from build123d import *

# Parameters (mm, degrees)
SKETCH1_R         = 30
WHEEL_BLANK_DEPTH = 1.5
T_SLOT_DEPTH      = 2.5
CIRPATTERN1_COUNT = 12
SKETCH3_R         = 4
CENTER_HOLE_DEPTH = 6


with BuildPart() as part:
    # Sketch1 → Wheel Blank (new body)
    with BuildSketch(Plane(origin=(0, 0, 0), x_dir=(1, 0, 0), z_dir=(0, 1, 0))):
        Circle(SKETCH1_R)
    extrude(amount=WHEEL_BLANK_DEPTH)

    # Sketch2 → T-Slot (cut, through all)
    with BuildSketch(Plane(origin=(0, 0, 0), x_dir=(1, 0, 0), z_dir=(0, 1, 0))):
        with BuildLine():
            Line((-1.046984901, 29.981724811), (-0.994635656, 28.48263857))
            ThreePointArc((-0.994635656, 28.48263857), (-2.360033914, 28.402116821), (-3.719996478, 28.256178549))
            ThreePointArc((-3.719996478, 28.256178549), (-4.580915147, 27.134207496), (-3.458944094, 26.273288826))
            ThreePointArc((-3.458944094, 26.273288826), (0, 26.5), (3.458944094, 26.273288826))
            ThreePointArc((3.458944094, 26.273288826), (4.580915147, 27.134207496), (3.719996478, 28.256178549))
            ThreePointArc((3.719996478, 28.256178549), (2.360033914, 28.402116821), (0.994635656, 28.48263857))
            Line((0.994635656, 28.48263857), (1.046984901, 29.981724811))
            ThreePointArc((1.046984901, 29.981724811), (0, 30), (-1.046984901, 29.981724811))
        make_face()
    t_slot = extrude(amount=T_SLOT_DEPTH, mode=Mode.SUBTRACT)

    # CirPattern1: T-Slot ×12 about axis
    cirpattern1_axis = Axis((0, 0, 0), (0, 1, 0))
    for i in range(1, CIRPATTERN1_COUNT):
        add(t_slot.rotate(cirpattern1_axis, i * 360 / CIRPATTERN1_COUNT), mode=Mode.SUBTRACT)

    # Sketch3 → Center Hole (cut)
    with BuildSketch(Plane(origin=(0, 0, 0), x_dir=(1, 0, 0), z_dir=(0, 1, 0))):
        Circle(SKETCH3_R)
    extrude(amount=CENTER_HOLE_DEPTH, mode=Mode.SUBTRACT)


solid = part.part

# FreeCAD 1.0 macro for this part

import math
import FreeCAD as App
import Part
import Sketcher
from FreeCAD import Vector
Q = App.Units.Quantity

doc = App.newDocument("Part")
body = doc.addObject("PartDesign::Body", "Body")

# Sketch on XZ plane
sketch1 = body.newObject("Sketcher::SketchObject", "Sketch")
sketch1.AttachmentSupport = (doc.getObject("XZ_Plane"), [""])
sketch1.MapMode = "FlatFace"
sketch1.addGeometry(Part.Circle(Vector(0, 0, 0), Vector(0, 0, 1), 30), False)
sketch1.addConstraint(Sketcher.Constraint("Coincident", 0, 3, -1, 1))
sketch1.addConstraint(Sketcher.Constraint("Diameter", 0, 60.0))
pad1 = body.newObject("PartDesign::Pad", "Pad")
pad1.Profile = sketch1
pad1.Length = 1.5
pad1.Reversed = True

# Sketch on XZ plane
sketch2 = body.newObject("Sketcher::SketchObject", "Sketch001")
sketch2.AttachmentSupport = (doc.getObject("XZ_Plane"), [""])
sketch2.MapMode = "FlatFace"
sketch2.addGeometry(Part.LineSegment(Vector(-1.046985, -29.981725, 0), Vector(-0.994636, -28.482639, 0)), False)
sketch2.addGeometry(Part.ArcOfCircle(Part.Circle(Vector(0, 0, 0), Vector(0, 0, 1), 28.5), math.radians(-97.5), math.radians(-92)), False)
sketch2.addGeometry(Part.ArcOfCircle(Part.Circle(Vector(-3.58947, -27.264734, 0), Vector(0, 0, 1), 1), math.radians(82.5), math.radians(262.5)), False)
sketch2.addGeometry(Part.ArcOfCircle(Part.Circle(Vector(0, 0, 0), Vector(0, 0, 1), 26.5), math.radians(-97.5), math.radians(-82.5)), False)
sketch2.addGeometry(Part.ArcOfCircle(Part.Circle(Vector(3.58947, -27.264734, 0), Vector(0, 0, 1), 1), math.radians(-82.5), math.radians(97.5)), False)
sketch2.addGeometry(Part.ArcOfCircle(Part.Circle(Vector(0, 0, 0), Vector(0, 0, 1), 28.5), math.radians(-88), math.radians(-82.5)), False)
sketch2.addGeometry(Part.LineSegment(Vector(0.994636, -28.482639, 0), Vector(1.046985, -29.981725, 0)), False)
sketch2.addGeometry(Part.ArcOfCircle(Part.Circle(Vector(0, 0.000001, 0), Vector(0, 0, 1), 30.000001), math.radians(-92), math.radians(-88)), False)
sketch2.addConstraint(Sketcher.Constraint("Coincident", 0, 2, 1, 2))
sketch2.addConstraint(Sketcher.Constraint("Tangent", 1, 1, 2, 2))
sketch2.addConstraint(Sketcher.Constraint("Tangent", 2, 1, 3, 1))
sketch2.addConstraint(Sketcher.Constraint("Tangent", 3, 2, 4, 2))
sketch2.addConstraint(Sketcher.Constraint("Tangent", 4, 1, 5, 2))
sketch2.addConstraint(Sketcher.Constraint("Coincident", 5, 1, 6, 1))
sketch2.addConstraint(Sketcher.Constraint("Coincident", 6, 2, 7, 2))
sketch2.addConstraint(Sketcher.Constraint("Coincident", 7, 1, 0, 1))
sketch2.addConstraint(Sketcher.Constraint("Coincident", 1, 3, -1, 1))
sketch2.addConstraint(Sketcher.Constraint("Coincident", 3, 3, -1, 1))
sketch2.addConstraint(Sketcher.Constraint("Coincident", 5, 3, -1, 1))
sketch2.addConstraint(Sketcher.Constraint("Coincident", 7, 3, -1, 1))
sketch2.addConstraint(Sketcher.Constraint("Equal", 2, 4))
sketch2.addConstraint(Sketcher.Constraint("Horizontal", 2, 3, 4, 3))
sketch2.addConstraint(Sketcher.Constraint("Horizontal", 0, 2, 5, 1))
sketch2.addConstraint(Sketcher.Constraint("Horizontal", 6, 2, 7, 1))
sketch2.addConstraint(Sketcher.Constraint("Radius", 2, 1.0))
sketch2.addConstraint(Sketcher.Constraint("Radius", 7, 30.000001))
sketch2.addConstraint(Sketcher.Constraint("Radius", 1, 28.5))
sketch2.addConstraint(Sketcher.Constraint("Angle", 0, Q("88 deg")))
sketch2.addConstraint(Sketcher.Constraint("DistanceX", 2, 3, -1, 1, 3.58947))
sketch2.addConstraint(Sketcher.Constraint("DistanceY", 0, 2, -1, 1, 28.482639))
pocket1 = body.newObject("PartDesign::Pocket", "Pocket")
pocket1.Profile = sketch2
pocket1.Type = "ThroughAll"
doc.recompute()

polarpattern = body.newObject("PartDesign::PolarPattern", "PolarPattern")
polarpattern.Originals = [pocket1]
polarpattern.Axis = (doc.getObject("Y_Axis"), [""])
polarpattern.Angle = 360
polarpattern.Occurrences = 12
body.Tip = polarpattern

# Sketch on XZ plane
sketch3 = body.newObject("Sketcher::SketchObject", "Sketch002")
sketch3.AttachmentSupport = (doc.getObject("XZ_Plane"), [""])
sketch3.MapMode = "FlatFace"
sketch3.addGeometry(Part.Circle(Vector(0, 0, 0), Vector(0, 0, 1), 4), False)
sketch3.addConstraint(Sketcher.Constraint("Coincident", 0, 3, -1, 1))
sketch3.addConstraint(Sketcher.Constraint("Diameter", 0, 8.0))
pocket2 = body.newObject("PartDesign::Pocket", "Pocket001")
pocket2.Profile = sketch3
pocket2.Length = 6

doc.recompute()
